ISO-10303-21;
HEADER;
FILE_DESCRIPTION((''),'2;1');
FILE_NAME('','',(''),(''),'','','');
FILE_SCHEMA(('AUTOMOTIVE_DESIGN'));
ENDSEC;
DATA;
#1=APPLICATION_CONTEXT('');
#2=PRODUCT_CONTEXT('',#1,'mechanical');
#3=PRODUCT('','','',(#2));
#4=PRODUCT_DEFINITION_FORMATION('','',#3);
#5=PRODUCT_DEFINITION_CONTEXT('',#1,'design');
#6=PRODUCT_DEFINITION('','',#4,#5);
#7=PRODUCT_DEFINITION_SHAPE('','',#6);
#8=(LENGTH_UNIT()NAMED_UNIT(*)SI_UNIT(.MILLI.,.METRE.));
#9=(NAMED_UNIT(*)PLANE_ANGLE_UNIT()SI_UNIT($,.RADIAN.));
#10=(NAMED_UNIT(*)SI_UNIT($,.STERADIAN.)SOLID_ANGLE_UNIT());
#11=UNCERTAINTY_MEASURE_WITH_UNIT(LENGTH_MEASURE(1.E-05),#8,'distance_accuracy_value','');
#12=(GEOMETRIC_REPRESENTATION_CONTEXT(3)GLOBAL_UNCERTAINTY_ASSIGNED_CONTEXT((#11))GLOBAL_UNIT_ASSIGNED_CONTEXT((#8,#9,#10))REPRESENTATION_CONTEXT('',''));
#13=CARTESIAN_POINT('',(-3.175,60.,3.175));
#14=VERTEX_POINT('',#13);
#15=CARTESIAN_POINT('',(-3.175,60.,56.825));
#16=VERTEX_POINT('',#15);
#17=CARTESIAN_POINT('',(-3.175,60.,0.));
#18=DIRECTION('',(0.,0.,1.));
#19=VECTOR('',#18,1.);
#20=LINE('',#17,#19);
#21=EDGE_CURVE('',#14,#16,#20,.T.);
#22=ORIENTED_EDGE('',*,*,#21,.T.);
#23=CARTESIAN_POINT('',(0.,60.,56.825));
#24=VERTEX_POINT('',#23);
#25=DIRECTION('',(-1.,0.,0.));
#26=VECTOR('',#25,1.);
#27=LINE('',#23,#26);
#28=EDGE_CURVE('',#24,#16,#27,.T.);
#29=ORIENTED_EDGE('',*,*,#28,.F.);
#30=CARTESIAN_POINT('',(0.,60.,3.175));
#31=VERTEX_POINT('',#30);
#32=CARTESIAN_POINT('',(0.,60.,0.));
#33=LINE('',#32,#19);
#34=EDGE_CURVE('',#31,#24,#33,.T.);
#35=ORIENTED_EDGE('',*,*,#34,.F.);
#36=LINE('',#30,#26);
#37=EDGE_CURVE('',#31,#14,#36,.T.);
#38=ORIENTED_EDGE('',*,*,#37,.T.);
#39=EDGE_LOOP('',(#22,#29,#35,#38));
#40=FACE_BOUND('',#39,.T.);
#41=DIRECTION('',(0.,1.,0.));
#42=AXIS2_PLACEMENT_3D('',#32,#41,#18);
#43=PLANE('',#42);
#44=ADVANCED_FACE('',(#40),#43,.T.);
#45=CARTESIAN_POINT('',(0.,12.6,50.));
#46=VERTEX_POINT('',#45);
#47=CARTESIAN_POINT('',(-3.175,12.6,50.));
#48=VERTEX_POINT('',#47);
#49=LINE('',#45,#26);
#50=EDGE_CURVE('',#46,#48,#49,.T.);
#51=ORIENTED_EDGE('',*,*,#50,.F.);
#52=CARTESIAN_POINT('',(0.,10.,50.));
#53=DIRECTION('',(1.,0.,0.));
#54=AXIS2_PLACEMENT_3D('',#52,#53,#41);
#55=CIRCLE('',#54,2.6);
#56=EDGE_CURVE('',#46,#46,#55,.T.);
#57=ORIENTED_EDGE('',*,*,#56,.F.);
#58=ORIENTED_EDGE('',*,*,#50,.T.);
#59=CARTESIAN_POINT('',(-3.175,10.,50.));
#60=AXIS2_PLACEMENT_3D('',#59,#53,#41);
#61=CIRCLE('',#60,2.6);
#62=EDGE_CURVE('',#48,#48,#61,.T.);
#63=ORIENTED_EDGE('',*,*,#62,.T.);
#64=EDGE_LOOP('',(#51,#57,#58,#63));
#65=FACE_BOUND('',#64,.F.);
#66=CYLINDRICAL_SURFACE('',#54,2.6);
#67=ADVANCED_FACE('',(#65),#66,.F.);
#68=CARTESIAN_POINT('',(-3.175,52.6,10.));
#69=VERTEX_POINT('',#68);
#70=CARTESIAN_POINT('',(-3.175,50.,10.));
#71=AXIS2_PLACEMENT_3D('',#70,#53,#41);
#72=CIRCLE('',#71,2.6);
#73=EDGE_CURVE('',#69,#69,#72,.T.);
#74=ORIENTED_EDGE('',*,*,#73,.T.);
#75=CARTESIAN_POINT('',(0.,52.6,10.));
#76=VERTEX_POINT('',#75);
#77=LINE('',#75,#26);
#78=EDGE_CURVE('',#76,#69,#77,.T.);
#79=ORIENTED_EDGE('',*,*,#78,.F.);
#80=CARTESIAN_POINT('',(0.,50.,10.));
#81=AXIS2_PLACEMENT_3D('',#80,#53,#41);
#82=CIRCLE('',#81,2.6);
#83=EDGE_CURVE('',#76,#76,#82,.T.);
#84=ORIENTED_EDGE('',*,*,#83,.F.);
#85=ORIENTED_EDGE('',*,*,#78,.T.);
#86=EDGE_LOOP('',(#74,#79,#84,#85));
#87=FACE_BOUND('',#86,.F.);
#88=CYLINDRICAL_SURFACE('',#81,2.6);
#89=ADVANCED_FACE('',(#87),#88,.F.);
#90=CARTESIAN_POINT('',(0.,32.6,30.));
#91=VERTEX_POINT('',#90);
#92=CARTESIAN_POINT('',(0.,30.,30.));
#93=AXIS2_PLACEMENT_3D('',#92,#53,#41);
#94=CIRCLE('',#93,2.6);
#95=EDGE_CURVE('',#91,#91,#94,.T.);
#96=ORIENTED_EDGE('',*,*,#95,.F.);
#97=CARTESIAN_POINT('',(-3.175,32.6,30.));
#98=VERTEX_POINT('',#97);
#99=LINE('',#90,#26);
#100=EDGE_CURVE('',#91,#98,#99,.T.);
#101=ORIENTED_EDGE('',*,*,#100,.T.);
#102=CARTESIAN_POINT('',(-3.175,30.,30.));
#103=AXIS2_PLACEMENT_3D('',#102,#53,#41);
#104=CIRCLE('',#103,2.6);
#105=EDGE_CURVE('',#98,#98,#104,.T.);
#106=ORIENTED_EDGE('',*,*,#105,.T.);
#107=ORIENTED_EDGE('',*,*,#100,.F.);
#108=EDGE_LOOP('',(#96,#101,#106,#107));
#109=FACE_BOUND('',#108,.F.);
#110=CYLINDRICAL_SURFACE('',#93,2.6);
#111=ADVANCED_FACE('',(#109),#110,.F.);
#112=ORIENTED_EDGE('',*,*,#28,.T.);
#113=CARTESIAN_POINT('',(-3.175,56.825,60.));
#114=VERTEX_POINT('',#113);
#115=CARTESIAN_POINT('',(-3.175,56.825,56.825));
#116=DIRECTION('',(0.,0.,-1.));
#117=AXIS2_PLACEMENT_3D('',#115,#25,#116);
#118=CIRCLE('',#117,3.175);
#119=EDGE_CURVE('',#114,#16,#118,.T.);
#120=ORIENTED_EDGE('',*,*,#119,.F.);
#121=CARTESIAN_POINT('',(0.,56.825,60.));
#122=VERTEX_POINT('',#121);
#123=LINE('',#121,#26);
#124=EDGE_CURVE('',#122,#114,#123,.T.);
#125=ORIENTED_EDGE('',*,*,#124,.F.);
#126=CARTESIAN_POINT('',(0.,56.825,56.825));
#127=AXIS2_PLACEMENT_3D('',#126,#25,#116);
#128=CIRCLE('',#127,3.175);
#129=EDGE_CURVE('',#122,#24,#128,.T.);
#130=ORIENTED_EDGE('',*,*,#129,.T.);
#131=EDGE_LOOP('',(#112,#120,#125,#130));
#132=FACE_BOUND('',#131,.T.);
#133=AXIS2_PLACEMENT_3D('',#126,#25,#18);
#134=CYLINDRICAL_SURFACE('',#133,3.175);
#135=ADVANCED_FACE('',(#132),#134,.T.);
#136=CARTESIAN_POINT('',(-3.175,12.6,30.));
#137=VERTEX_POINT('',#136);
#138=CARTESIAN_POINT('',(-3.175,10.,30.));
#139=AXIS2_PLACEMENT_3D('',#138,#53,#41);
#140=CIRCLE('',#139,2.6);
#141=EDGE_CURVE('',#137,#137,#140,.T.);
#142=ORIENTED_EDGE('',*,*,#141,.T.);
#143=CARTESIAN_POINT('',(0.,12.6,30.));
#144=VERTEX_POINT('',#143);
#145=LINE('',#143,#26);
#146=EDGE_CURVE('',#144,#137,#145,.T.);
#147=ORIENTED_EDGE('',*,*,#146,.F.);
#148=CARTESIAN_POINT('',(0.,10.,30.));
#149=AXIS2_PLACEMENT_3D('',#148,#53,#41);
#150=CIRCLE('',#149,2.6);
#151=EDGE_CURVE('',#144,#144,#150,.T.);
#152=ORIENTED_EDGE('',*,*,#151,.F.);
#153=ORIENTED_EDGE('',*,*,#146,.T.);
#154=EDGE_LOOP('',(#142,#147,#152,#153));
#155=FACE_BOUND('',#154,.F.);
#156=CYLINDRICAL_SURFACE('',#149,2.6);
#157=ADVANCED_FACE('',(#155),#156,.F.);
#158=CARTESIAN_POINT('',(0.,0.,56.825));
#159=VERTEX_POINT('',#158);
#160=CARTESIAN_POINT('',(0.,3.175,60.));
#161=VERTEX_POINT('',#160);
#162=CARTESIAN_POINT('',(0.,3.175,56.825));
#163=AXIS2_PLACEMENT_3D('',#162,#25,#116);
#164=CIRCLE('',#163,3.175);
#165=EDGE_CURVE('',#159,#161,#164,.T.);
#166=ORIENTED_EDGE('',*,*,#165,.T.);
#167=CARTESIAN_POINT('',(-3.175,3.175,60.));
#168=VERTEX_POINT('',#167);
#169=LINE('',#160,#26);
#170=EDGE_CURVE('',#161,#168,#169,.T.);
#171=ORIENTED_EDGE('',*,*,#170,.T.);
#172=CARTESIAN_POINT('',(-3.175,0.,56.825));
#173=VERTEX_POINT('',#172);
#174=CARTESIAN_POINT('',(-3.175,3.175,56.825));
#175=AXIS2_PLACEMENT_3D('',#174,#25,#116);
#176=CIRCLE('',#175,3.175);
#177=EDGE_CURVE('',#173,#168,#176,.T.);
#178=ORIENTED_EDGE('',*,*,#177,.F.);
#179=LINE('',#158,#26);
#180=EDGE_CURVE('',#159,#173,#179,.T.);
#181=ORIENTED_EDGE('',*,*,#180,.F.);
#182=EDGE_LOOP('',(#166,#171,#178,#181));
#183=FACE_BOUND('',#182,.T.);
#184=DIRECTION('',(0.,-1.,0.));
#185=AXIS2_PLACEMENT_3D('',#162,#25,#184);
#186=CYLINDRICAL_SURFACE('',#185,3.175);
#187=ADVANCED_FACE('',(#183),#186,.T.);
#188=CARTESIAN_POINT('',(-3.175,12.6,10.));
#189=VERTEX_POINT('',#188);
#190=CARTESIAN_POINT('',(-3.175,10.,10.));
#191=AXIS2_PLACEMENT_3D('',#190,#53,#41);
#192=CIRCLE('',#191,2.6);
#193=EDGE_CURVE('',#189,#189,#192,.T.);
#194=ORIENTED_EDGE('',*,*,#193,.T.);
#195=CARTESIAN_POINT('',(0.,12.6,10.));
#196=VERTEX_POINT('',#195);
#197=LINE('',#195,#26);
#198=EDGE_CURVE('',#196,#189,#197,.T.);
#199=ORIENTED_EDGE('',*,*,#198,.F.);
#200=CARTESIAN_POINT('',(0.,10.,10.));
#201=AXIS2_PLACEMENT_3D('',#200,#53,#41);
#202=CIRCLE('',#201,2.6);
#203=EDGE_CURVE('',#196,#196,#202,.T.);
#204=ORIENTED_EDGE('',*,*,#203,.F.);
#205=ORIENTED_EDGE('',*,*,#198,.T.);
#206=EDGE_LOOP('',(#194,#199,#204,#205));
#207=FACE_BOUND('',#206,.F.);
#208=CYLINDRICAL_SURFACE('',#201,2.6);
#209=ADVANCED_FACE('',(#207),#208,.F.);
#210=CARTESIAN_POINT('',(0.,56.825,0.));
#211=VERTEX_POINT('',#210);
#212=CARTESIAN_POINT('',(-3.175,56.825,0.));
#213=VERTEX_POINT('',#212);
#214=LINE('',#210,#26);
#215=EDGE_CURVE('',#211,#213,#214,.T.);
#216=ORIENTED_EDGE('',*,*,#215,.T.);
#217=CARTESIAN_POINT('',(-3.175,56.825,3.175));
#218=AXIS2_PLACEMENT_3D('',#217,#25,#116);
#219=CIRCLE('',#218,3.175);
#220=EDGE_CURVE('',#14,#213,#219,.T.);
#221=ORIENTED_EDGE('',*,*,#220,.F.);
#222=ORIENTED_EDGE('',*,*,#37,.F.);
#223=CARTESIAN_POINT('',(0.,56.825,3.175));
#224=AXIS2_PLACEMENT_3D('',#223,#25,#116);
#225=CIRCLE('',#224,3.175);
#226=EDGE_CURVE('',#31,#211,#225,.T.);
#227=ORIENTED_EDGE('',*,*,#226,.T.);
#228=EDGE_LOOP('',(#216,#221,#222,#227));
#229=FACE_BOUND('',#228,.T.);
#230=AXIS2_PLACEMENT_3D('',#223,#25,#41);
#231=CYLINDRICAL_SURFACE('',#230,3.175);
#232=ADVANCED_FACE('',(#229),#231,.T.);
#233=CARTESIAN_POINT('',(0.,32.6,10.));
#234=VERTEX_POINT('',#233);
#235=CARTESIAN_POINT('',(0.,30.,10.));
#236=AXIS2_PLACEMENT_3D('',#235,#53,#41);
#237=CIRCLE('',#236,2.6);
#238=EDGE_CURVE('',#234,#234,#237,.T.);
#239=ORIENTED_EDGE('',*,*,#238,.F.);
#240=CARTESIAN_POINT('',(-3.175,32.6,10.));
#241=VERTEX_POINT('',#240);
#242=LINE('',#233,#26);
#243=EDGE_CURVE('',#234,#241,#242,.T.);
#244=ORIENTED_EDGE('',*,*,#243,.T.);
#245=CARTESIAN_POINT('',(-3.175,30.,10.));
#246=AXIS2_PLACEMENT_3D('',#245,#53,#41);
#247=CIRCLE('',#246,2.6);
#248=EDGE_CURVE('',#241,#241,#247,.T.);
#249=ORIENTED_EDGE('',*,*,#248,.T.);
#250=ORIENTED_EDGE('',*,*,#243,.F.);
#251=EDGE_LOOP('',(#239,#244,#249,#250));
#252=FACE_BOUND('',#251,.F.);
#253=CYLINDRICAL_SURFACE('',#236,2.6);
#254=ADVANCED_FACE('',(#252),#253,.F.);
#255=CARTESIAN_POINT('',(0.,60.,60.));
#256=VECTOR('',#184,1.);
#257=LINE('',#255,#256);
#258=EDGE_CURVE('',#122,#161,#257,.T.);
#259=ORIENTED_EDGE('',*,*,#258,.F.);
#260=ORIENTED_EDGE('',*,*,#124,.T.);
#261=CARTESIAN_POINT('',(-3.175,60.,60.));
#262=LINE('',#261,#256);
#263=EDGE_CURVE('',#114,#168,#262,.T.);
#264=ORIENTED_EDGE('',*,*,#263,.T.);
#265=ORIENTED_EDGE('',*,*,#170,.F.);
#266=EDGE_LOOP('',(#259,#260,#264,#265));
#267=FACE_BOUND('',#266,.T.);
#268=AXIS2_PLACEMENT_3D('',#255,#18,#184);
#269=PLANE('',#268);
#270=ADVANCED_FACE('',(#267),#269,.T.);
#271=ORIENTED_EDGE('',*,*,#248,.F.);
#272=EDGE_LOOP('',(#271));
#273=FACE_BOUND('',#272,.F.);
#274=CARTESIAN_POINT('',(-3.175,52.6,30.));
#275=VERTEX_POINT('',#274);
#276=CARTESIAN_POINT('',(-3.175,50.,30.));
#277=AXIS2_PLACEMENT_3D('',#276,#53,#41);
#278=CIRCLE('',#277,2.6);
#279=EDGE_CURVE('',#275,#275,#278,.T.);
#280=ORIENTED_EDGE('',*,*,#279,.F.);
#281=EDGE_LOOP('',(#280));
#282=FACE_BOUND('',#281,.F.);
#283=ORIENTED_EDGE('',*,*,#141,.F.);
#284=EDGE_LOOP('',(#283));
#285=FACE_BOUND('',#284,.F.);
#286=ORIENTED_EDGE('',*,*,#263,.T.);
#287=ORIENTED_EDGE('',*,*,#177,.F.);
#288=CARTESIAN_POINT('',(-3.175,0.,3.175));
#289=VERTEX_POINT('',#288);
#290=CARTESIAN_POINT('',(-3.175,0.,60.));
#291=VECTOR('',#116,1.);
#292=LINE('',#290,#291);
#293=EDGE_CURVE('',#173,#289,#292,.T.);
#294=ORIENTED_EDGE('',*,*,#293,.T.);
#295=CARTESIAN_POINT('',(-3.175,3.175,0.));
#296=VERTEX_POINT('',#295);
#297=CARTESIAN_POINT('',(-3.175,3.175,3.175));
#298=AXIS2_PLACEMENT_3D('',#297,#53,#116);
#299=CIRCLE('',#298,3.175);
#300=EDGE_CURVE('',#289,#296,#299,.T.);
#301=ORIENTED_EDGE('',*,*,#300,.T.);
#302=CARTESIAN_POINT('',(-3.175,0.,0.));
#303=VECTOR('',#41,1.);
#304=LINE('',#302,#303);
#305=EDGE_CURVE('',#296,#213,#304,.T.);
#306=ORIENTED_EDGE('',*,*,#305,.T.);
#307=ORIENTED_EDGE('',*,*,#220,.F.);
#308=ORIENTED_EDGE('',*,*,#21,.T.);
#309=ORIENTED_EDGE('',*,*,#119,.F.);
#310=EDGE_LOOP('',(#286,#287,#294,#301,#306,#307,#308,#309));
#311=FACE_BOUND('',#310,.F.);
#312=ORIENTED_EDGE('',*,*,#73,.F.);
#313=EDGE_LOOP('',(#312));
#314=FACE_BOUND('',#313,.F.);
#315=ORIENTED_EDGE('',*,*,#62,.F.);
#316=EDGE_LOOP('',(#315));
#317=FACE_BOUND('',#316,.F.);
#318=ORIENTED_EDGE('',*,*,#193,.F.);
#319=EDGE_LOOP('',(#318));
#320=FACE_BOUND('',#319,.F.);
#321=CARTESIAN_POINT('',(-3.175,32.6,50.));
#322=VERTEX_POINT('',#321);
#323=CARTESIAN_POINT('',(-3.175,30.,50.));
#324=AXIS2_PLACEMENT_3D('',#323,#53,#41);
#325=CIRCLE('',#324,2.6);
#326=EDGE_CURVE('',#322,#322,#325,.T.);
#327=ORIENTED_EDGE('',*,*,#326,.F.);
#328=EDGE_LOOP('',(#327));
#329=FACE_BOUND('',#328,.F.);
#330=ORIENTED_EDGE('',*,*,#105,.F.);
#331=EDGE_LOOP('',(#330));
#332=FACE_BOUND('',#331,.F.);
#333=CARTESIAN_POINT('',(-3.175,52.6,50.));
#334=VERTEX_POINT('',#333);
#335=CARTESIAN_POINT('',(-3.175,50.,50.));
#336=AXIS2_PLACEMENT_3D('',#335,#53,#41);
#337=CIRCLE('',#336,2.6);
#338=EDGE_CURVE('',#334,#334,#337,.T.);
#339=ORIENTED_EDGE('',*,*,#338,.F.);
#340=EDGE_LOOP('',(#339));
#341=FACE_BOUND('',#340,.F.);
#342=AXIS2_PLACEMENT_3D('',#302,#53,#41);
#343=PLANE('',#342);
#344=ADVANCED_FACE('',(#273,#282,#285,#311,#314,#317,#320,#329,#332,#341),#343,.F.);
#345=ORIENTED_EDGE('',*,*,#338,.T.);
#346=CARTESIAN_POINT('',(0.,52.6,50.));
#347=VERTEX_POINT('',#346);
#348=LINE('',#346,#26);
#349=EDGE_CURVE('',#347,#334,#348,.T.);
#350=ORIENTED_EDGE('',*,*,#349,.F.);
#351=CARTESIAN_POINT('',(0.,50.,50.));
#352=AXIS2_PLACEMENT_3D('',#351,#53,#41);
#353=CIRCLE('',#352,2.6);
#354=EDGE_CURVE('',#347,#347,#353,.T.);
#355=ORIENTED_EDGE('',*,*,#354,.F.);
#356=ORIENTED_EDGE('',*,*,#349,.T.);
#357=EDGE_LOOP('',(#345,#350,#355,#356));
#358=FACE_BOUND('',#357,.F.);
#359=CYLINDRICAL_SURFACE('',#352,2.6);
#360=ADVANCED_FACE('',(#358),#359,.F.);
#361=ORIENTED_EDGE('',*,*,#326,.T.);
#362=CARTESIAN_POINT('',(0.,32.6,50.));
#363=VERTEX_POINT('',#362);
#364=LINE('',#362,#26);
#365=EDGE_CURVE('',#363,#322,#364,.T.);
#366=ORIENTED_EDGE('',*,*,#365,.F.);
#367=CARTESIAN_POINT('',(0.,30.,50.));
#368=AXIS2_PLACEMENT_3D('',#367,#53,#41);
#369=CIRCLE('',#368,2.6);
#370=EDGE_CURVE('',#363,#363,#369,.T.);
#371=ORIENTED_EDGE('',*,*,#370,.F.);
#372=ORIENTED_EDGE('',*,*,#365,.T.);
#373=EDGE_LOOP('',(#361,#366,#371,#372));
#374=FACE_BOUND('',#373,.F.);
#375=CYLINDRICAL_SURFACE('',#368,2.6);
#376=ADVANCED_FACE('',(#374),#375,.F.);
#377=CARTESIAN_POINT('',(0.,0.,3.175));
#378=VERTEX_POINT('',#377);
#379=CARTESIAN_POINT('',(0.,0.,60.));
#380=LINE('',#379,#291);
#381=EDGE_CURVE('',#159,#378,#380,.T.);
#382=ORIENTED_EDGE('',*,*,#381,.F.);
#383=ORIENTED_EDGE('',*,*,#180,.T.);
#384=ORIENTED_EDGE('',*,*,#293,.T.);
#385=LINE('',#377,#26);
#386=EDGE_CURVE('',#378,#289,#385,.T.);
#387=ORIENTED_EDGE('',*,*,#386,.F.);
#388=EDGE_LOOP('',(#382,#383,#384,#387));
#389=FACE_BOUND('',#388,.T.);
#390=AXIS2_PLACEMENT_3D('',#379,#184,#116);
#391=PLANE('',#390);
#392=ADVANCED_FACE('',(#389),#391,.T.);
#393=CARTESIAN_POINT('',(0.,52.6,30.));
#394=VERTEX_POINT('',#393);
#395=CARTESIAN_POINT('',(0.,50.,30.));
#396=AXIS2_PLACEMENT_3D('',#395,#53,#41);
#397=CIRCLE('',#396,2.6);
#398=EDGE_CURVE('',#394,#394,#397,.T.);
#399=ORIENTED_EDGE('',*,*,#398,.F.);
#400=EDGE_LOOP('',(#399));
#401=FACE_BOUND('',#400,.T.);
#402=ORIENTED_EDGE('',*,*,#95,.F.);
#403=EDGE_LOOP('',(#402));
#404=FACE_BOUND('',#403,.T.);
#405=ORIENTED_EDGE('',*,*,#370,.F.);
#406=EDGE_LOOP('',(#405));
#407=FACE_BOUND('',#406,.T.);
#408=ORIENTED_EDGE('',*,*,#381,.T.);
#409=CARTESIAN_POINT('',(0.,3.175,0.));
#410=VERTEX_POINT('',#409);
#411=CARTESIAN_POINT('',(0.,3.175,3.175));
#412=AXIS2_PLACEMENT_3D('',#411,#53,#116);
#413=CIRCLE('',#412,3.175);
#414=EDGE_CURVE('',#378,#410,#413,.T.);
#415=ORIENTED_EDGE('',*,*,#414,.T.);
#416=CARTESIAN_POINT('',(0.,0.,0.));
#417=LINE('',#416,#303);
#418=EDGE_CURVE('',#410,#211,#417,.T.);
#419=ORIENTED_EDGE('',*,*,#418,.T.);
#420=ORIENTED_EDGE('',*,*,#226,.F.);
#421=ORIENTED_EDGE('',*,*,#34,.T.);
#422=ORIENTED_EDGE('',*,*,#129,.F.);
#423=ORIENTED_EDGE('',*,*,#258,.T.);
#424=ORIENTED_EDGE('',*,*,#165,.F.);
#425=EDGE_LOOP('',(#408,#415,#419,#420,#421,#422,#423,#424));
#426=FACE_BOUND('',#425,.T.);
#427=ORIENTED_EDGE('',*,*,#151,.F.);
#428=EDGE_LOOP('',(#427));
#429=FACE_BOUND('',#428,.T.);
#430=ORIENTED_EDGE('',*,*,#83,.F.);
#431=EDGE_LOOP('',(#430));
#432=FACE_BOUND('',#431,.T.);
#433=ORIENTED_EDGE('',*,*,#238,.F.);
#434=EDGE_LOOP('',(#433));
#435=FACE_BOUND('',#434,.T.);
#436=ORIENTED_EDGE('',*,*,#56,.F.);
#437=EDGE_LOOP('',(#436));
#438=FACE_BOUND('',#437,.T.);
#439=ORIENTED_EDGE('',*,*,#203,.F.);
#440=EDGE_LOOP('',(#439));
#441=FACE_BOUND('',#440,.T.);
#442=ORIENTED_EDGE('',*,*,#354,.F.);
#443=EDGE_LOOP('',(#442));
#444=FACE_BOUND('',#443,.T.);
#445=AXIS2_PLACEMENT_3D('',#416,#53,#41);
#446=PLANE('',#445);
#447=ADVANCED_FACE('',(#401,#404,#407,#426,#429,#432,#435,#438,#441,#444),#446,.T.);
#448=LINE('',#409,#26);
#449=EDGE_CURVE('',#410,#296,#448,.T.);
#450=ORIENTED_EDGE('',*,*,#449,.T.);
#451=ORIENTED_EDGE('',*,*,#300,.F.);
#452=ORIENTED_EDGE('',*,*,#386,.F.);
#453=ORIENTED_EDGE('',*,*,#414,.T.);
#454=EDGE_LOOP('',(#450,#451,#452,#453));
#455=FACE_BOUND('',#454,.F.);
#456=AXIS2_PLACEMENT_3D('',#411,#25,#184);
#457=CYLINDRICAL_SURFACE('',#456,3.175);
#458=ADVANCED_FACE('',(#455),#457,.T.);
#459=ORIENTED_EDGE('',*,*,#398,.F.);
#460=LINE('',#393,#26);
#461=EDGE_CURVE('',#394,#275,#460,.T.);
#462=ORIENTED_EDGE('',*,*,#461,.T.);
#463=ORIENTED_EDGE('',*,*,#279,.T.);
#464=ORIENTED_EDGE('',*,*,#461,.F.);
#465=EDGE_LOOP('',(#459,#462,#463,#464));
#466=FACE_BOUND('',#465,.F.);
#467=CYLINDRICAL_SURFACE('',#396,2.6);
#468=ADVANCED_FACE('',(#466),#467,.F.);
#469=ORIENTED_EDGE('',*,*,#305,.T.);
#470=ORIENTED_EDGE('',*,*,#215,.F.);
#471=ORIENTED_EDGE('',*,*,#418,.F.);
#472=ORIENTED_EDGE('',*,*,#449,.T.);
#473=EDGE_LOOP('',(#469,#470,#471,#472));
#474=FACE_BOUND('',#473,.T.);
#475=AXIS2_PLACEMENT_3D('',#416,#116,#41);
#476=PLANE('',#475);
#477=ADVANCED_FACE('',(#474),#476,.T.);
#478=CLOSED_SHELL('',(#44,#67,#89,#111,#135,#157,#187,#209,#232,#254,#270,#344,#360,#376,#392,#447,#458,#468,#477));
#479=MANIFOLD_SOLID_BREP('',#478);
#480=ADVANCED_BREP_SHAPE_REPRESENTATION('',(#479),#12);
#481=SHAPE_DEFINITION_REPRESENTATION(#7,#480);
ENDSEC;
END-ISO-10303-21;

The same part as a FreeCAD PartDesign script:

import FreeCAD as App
import Part
import Sketcher

V = App.Vector
Q = App.Units.Quantity


def edges_at(feature, points):
    """Names of the edges that pass closest to the given points."""
    edges = feature.Shape.Edges
    near = lambda p: min(range(len(edges)), key=lambda i: edges[i].distToShape(Part.Vertex(*p))[0])
    return sorted({f"Edge{near(p) + 1}" for p in points})

doc = App.newDocument("Part")
body = doc.addObject("PartDesign::Body", "Body")

# Sketch on YZ plane
sketch1 = body.newObject("Sketcher::SketchObject", "Sketch")
sketch1.AttachmentSupport = (doc.getObject("YZ_Plane"), [""])
sketch1.MapMode = "FlatFace"
sketch1.addGeometry([
    Part.LineSegment(V(0, 60, 0), V(0, 0, 0)),  # 0
    Part.LineSegment(V(0, 0, 0), V(60, 0, 0)),  # 1
    Part.LineSegment(V(60, 0, 0), V(60, 60, 0)),  # 2
    Part.LineSegment(V(60, 60, 0), V(0, 60, 0)),  # 3
    Part.Circle(V(10, 10, 0), V(0, 0, 1), 2.6),  # 4
    Part.Circle(V(30, 10, 0), V(0, 0, 1), 2.6),  # 5
    Part.Circle(V(50, 10, 0), V(0, 0, 1), 2.6),  # 6
    Part.Circle(V(10, 30, 0), V(0, 0, 1), 2.6),  # 7
    Part.Circle(V(10, 50, 0), V(0, 0, 1), 2.6),  # 8
    Part.Circle(V(30, 30, 0), V(0, 0, 1), 2.6),  # 9
    Part.Circle(V(50, 30, 0), V(0, 0, 1), 2.6),  # 10
    Part.Circle(V(30, 50, 0), V(0, 0, 1), 2.6),  # 11
    Part.Circle(V(50, 50, 0), V(0, 0, 1), 2.6),  # 12
], False)
sketch1.addConstraint([
    Sketcher.Constraint("Coincident", 0, 2, 1, 1),
    Sketcher.Constraint("Coincident", 1, 2, 2, 1),
    Sketcher.Constraint("Coincident", 2, 2, 3, 1),
    Sketcher.Constraint("Coincident", 3, 2, 0, 1),
    Sketcher.Constraint("Vertical", 0),
    Sketcher.Constraint("Horizontal", 1),
    Sketcher.Constraint("Vertical", 2),
    Sketcher.Constraint("Horizontal", 3),
    Sketcher.Constraint("Coincident", 0, 2, -1, 1),
    Sketcher.Constraint("Equal", 4, 5),
    Sketcher.Constraint("Equal", 5, 6),
    Sketcher.Constraint("Equal", 6, 7),
    Sketcher.Constraint("Equal", 7, 8),
    Sketcher.Constraint("Equal", 8, 9),
    Sketcher.Constraint("Equal", 9, 10),
    Sketcher.Constraint("Equal", 10, 11),
    Sketcher.Constraint("Equal", 11, 12),
    Sketcher.Constraint("Horizontal", 4, 3, 5, 3),
    Sketcher.Constraint("Horizontal", 5, 3, 6, 3),
    Sketcher.Constraint("Horizontal", 7, 3, 9, 3),
    Sketcher.Constraint("Horizontal", 9, 3, 10, 3),
    Sketcher.Constraint("Horizontal", 8, 3, 11, 3),
    Sketcher.Constraint("Horizontal", 11, 3, 12, 3),
    Sketcher.Constraint("Vertical", 4, 3, 7, 3),
    Sketcher.Constraint("Vertical", 7, 3, 8, 3),
    Sketcher.Constraint("Vertical", 5, 3, 9, 3),
    Sketcher.Constraint("Vertical", 6, 3, 10, 3),
    Sketcher.Constraint("Vertical", 9, 3, 11, 3),
    Sketcher.Constraint("Vertical", 10, 3, 12, 3),
    Sketcher.Constraint("Equal", 3, 0),
    Sketcher.Constraint("Diameter", 4, Q("5.2 mm")),
    Sketcher.Constraint("DistanceX", 1, 1, 1, 2, Q("60 mm")),
    Sketcher.Constraint("DistanceX", 4, 3, 5, 3, Q("20 mm")),
    Sketcher.Constraint("DistanceX", 5, 3, 6, 3, Q("20 mm")),
    Sketcher.Constraint("DistanceY", 4, 3, 7, 3, Q("20 mm")),
    Sketcher.Constraint("DistanceY", 7, 3, 8, 3, Q("20 mm")),
    Sketcher.Constraint("DistanceX", -1, 1, 4, 3, Q("10 mm")),
    Sketcher.Constraint("DistanceY", -1, 1, 4, 3, Q("10 mm")),
])
pad1 = body.newObject("PartDesign::Pad", "Pad")
pad1.Profile = sketch1
pad1.Length = 3.175
pad1.Reversed = True
doc.recompute()

fillet = body.newObject("PartDesign::Fillet", "Fillet")
fillet.Base = (pad1, edges_at(pad1, [
    (-1.587, 60, 60),
    (-1.587, 0, 60),
    (-1.587, 0, 0),
    (-1.587, 60, 0),
]))
fillet.Radius = 3.175

doc.recompute()
